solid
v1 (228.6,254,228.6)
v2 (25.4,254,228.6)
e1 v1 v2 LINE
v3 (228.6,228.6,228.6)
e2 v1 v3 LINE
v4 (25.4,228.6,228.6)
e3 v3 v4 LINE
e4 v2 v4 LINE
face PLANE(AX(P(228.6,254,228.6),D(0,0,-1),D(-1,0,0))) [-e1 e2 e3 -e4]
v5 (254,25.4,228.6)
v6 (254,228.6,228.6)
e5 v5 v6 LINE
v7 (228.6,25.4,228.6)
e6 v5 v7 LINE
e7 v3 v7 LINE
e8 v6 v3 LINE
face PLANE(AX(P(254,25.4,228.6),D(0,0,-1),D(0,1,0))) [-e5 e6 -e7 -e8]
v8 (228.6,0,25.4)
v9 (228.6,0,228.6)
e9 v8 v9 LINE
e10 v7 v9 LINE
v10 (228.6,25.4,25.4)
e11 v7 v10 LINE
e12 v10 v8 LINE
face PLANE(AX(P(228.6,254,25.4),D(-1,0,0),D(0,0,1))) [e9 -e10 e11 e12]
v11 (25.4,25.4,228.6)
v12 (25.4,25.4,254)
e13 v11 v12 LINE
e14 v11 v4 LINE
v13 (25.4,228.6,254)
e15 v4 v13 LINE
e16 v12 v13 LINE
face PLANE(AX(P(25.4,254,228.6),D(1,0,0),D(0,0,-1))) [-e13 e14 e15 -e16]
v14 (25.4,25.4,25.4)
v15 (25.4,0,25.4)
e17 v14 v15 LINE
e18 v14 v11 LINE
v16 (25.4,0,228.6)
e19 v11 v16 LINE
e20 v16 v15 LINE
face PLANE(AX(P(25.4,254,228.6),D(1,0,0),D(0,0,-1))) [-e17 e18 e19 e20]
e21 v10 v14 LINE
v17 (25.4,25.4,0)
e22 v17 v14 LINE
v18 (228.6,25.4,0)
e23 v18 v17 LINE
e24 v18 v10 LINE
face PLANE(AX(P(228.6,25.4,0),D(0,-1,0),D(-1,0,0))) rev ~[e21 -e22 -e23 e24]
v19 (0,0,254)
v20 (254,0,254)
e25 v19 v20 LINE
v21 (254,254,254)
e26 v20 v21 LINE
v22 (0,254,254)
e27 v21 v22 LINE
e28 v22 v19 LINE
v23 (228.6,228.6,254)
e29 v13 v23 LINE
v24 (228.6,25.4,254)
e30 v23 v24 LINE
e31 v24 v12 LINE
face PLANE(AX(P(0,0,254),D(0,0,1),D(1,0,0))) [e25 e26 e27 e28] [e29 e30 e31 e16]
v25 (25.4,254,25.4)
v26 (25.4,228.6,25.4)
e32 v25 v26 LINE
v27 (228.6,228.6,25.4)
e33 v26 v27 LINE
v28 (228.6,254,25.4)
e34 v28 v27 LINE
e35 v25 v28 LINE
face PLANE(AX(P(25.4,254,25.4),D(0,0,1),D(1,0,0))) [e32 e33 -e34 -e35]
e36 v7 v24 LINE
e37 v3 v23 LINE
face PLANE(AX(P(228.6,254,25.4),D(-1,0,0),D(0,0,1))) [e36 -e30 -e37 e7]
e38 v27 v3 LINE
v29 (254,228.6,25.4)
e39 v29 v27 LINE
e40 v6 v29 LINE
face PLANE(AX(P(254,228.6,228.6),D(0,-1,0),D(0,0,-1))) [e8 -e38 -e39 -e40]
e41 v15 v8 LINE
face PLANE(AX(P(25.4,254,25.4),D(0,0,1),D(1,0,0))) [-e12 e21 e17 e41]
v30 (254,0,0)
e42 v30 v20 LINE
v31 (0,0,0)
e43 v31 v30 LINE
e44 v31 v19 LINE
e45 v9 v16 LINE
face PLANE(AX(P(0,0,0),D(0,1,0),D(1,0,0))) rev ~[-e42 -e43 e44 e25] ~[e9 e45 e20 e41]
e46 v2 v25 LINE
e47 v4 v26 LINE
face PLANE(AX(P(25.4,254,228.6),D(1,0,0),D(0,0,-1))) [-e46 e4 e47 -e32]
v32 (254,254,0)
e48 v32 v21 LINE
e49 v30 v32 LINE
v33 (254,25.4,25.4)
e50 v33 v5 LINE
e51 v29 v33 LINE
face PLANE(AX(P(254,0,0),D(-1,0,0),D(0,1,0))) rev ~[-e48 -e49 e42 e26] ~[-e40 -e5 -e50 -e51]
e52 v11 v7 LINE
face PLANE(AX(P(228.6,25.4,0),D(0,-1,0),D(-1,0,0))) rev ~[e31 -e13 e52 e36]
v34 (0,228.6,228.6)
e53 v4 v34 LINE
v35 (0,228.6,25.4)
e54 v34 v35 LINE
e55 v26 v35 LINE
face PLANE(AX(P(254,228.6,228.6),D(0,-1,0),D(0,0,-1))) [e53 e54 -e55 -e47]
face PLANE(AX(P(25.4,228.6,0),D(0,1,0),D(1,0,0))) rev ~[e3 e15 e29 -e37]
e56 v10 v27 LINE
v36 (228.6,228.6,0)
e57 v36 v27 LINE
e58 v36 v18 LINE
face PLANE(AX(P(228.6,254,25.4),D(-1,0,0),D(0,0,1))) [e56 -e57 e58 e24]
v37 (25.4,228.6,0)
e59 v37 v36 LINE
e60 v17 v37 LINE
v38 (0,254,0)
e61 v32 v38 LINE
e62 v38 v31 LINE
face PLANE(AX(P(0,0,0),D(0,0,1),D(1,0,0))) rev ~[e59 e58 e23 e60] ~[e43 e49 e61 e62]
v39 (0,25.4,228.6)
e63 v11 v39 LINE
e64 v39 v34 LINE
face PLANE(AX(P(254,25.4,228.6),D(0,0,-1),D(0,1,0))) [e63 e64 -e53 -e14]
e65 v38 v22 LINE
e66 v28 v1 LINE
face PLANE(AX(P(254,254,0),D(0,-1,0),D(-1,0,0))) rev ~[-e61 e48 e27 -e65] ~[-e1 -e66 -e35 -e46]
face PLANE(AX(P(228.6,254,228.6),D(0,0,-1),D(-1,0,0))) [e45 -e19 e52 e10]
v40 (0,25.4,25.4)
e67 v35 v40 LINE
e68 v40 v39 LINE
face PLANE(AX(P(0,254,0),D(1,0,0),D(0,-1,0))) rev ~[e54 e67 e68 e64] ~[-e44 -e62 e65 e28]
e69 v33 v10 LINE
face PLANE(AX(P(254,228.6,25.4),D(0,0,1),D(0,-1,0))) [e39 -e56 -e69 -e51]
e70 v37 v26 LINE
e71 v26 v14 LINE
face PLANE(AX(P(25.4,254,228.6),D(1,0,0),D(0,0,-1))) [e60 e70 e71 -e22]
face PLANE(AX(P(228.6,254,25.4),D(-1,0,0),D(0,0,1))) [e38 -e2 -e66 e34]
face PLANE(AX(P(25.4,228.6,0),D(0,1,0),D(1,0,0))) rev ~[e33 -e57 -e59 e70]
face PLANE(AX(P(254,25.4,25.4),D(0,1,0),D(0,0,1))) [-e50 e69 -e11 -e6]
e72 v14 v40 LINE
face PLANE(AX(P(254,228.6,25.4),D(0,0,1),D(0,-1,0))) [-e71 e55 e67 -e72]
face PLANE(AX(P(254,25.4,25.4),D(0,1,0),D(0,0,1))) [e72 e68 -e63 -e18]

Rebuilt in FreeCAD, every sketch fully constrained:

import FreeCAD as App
import Part
import Sketcher
from FreeCAD import Vector
Q = App.Units.Quantity

doc = App.newDocument("Part")
body = doc.addObject("PartDesign::Body", "Body")

sketch1 = body.newObject("Sketcher::SketchObject", "Sketch")
sketch1.AttachmentSupport = (doc.getObject("XY_Plane"), [""])
sketch1.MapMode = "FlatFace"
sketch1.addGeometry(Part.LineSegment(Vector(0, 254, 0), Vector(0, 0, 0)), False)
sketch1.addGeometry(Part.LineSegment(Vector(0, 0, 0), Vector(254, 0, 0)), False)
sketch1.addGeometry(Part.LineSegment(Vector(254, 0, 0), Vector(254, 254, 0)), False)
sketch1.addGeometry(Part.LineSegment(Vector(254, 254, 0), Vector(0, 254, 0)), False)
sketch1.addGeometry(Part.LineSegment(Vector(25.4, 25.4, 0), Vector(25.4, 228.6, 0)), False)
sketch1.addGeometry(Part.LineSegment(Vector(25.4, 228.6, 0), Vector(228.6, 228.6, 0)), False)
sketch1.addGeometry(Part.LineSegment(Vector(228.6, 228.6, 0), Vector(228.6, 25.4, 0)), False)
sketch1.addGeometry(Part.LineSegment(Vector(228.6, 25.4, 0), Vector(25.4, 25.4, 0)), False)
sketch1.addConstraint(Sketcher.Constraint("Coincident", 0, 2, 1, 1))
sketch1.addConstraint(Sketcher.Constraint("Coincident", 1, 2, 2, 1))
sketch1.addConstraint(Sketcher.Constraint("Coincident", 2, 2, 3, 1))
sketch1.addConstraint(Sketcher.Constraint("Coincident", 3, 2, 0, 1))
sketch1.addConstraint(Sketcher.Constraint("Coincident", 4, 2, 5, 1))
sketch1.addConstraint(Sketcher.Constraint("Coincident", 5, 2, 6, 1))
sketch1.addConstraint(Sketcher.Constraint("Coincident", 6, 2, 7, 1))
sketch1.addConstraint(Sketcher.Constraint("Coincident", 7, 2, 4, 1))
sketch1.addConstraint(Sketcher.Constraint("Vertical", 0))
sketch1.addConstraint(Sketcher.Constraint("Horizontal", 1))
sketch1.addConstraint(Sketcher.Constraint("Vertical", 2))
sketch1.addConstraint(Sketcher.Constraint("Horizontal", 3))
sketch1.addConstraint(Sketcher.Constraint("Vertical", 4))
sketch1.addConstraint(Sketcher.Constraint("Horizontal", 5))
sketch1.addConstraint(Sketcher.Constraint("Vertical", 6))
sketch1.addConstraint(Sketcher.Constraint("Horizontal", 7))
sketch1.addConstraint(Sketcher.Constraint("Coincident", 0, 2, -1, 1))
sketch1.addConstraint(Sketcher.Constraint("Equal", 3, 0))
sketch1.addConstraint(Sketcher.Constraint("Equal", 7, 4))
sketch1.addConstraint(Sketcher.Constraint("DistanceX", 1, 1, 1, 2, Q("10 in")))
sketch1.addConstraint(Sketcher.Constraint("DistanceX", -1, 1, 4, 2, Q("1 in")))
sketch1.addConstraint(Sketcher.Constraint("DistanceY", -1, 1, 6, 2, Q("1 in")))
sketch1.addConstraint(Sketcher.Constraint("DistanceY", 4, 2, 3, 2, Q("1 in")))
pad1 = body.newObject("PartDesign::Pad", "Pad")
pad1.Profile = sketch1
pad1.Length = Q("10 in")

sketch2 = body.newObject("Sketcher::SketchObject", "Sketch001")
sketch2.AttachmentSupport = (doc.getObject("XZ_Plane"), [""])
sketch2.MapMode = "FlatFace"
sketch2.AttachmentOffset = App.Placement(Vector(0, 0, -10 * 25.4), App.Rotation())
sketch2.addGeometry(Part.LineSegment(Vector(25.4, 25.4, 0), Vector(25.4, 228.6, 0)), False)
sketch2.addGeometry(Part.LineSegment(Vector(25.4, 228.6, 0), Vector(228.6, 228.6, 0)), False)
sketch2.addGeometry(Part.LineSegment(Vector(228.6, 228.6, 0), Vector(228.6, 25.4, 0)), False)
sketch2.addGeometry(Part.LineSegment(Vector(228.6, 25.4, 0), Vector(25.4, 25.4, 0)), False)
sketch2.addConstraint(Sketcher.Constraint("Coincident", 0, 2, 1, 1))
sketch2.addConstraint(Sketcher.Constraint("Coincident", 1, 2, 2, 1))
sketch2.addConstraint(Sketcher.Constraint("Coincident", 2, 2, 3, 1))
sketch2.addConstraint(Sketcher.Constraint("Coincident", 3, 2, 0, 1))
sketch2.addConstraint(Sketcher.Constraint("Vertical", 0))
sketch2.addConstraint(Sketcher.Constraint("Horizontal", 1))
sketch2.addConstraint(Sketcher.Constraint("Vertical", 2))
sketch2.addConstraint(Sketcher.Constraint("Horizontal", 3))
sketch2.addConstraint(Sketcher.Constraint("Equal", 3, 0))
sketch2.addConstraint(Sketcher.Constraint("DistanceX", -1, 1, 0, 2, Q("1 in")))
sketch2.addConstraint(Sketcher.Constraint("DistanceY", -1, 1, 2, 2, Q("1 in")))
sketch2.addConstraint(Sketcher.Constraint("DistanceX", 1, 1, 1, 2, Q("8 in")))
pocket1 = body.newObject("PartDesign::Pocket", "Pocket")
pocket1.Profile = sketch2
pocket1.Length = Q("10 in")
pocket1.Reversed = True

sketch3 = body.newObject("Sketcher::SketchObject", "Sketch002")
sketch3.AttachmentSupport = (doc.getObject("YZ_Plane"), [""])
sketch3.MapMode = "FlatFace"
sketch3.AttachmentOffset = App.Placement(Vector(0, 0, 10 * 25.4), App.Rotation())
sketch3.addGeometry(Part.LineSegment(Vector(25.4, 25.4, 0), Vector(228.6, 25.4, 0)), False)
sketch3.addGeometry(Part.LineSegment(Vector(228.6, 25.4, 0), Vector(228.6, 228.6, 0)), False)
sketch3.addGeometry(Part.LineSegment(Vector(228.6, 228.6, 0), Vector(25.4, 228.6, 0)), False)
sketch3.addGeometry(Part.LineSegment(Vector(25.4, 228.6, 0), Vector(25.4, 25.4, 0)), False)
sketch3.addConstraint(Sketcher.Constraint("Coincident", 0, 2, 1, 1))
sketch3.addConstraint(Sketcher.Constraint("Coincident", 1, 2, 2, 1))
sketch3.addConstraint(Sketcher.Constraint("Coincident", 2, 2, 3, 1))
sketch3.addConstraint(Sketcher.Constraint("Coincident", 3, 2, 0, 1))
sketch3.addConstraint(Sketcher.Constraint("Horizontal", 0))
sketch3.addConstraint(Sketcher.Constraint("Vertical", 1))
sketch3.addConstraint(Sketcher.Constraint("Horizontal", 2))
sketch3.addConstraint(Sketcher.Constraint("Vertical", 3))
sketch3.addConstraint(Sketcher.Constraint("Equal", 2, 1))
sketch3.addConstraint(Sketcher.Constraint("DistanceY", -1, 1, 0, 2, Q("1 in")))
sketch3.addConstraint(Sketcher.Constraint("DistanceX", -1, 1, 2, 2, Q("1 in")))
sketch3.addConstraint(Sketcher.Constraint("DistanceX", 0, 1, 0, 2, Q("8 in")))
pocket2 = body.newObject("PartDesign::Pocket", "Pocket001")
pocket2.Profile = sketch3
pocket2.Length = Q("10 in")

doc.recompute()
